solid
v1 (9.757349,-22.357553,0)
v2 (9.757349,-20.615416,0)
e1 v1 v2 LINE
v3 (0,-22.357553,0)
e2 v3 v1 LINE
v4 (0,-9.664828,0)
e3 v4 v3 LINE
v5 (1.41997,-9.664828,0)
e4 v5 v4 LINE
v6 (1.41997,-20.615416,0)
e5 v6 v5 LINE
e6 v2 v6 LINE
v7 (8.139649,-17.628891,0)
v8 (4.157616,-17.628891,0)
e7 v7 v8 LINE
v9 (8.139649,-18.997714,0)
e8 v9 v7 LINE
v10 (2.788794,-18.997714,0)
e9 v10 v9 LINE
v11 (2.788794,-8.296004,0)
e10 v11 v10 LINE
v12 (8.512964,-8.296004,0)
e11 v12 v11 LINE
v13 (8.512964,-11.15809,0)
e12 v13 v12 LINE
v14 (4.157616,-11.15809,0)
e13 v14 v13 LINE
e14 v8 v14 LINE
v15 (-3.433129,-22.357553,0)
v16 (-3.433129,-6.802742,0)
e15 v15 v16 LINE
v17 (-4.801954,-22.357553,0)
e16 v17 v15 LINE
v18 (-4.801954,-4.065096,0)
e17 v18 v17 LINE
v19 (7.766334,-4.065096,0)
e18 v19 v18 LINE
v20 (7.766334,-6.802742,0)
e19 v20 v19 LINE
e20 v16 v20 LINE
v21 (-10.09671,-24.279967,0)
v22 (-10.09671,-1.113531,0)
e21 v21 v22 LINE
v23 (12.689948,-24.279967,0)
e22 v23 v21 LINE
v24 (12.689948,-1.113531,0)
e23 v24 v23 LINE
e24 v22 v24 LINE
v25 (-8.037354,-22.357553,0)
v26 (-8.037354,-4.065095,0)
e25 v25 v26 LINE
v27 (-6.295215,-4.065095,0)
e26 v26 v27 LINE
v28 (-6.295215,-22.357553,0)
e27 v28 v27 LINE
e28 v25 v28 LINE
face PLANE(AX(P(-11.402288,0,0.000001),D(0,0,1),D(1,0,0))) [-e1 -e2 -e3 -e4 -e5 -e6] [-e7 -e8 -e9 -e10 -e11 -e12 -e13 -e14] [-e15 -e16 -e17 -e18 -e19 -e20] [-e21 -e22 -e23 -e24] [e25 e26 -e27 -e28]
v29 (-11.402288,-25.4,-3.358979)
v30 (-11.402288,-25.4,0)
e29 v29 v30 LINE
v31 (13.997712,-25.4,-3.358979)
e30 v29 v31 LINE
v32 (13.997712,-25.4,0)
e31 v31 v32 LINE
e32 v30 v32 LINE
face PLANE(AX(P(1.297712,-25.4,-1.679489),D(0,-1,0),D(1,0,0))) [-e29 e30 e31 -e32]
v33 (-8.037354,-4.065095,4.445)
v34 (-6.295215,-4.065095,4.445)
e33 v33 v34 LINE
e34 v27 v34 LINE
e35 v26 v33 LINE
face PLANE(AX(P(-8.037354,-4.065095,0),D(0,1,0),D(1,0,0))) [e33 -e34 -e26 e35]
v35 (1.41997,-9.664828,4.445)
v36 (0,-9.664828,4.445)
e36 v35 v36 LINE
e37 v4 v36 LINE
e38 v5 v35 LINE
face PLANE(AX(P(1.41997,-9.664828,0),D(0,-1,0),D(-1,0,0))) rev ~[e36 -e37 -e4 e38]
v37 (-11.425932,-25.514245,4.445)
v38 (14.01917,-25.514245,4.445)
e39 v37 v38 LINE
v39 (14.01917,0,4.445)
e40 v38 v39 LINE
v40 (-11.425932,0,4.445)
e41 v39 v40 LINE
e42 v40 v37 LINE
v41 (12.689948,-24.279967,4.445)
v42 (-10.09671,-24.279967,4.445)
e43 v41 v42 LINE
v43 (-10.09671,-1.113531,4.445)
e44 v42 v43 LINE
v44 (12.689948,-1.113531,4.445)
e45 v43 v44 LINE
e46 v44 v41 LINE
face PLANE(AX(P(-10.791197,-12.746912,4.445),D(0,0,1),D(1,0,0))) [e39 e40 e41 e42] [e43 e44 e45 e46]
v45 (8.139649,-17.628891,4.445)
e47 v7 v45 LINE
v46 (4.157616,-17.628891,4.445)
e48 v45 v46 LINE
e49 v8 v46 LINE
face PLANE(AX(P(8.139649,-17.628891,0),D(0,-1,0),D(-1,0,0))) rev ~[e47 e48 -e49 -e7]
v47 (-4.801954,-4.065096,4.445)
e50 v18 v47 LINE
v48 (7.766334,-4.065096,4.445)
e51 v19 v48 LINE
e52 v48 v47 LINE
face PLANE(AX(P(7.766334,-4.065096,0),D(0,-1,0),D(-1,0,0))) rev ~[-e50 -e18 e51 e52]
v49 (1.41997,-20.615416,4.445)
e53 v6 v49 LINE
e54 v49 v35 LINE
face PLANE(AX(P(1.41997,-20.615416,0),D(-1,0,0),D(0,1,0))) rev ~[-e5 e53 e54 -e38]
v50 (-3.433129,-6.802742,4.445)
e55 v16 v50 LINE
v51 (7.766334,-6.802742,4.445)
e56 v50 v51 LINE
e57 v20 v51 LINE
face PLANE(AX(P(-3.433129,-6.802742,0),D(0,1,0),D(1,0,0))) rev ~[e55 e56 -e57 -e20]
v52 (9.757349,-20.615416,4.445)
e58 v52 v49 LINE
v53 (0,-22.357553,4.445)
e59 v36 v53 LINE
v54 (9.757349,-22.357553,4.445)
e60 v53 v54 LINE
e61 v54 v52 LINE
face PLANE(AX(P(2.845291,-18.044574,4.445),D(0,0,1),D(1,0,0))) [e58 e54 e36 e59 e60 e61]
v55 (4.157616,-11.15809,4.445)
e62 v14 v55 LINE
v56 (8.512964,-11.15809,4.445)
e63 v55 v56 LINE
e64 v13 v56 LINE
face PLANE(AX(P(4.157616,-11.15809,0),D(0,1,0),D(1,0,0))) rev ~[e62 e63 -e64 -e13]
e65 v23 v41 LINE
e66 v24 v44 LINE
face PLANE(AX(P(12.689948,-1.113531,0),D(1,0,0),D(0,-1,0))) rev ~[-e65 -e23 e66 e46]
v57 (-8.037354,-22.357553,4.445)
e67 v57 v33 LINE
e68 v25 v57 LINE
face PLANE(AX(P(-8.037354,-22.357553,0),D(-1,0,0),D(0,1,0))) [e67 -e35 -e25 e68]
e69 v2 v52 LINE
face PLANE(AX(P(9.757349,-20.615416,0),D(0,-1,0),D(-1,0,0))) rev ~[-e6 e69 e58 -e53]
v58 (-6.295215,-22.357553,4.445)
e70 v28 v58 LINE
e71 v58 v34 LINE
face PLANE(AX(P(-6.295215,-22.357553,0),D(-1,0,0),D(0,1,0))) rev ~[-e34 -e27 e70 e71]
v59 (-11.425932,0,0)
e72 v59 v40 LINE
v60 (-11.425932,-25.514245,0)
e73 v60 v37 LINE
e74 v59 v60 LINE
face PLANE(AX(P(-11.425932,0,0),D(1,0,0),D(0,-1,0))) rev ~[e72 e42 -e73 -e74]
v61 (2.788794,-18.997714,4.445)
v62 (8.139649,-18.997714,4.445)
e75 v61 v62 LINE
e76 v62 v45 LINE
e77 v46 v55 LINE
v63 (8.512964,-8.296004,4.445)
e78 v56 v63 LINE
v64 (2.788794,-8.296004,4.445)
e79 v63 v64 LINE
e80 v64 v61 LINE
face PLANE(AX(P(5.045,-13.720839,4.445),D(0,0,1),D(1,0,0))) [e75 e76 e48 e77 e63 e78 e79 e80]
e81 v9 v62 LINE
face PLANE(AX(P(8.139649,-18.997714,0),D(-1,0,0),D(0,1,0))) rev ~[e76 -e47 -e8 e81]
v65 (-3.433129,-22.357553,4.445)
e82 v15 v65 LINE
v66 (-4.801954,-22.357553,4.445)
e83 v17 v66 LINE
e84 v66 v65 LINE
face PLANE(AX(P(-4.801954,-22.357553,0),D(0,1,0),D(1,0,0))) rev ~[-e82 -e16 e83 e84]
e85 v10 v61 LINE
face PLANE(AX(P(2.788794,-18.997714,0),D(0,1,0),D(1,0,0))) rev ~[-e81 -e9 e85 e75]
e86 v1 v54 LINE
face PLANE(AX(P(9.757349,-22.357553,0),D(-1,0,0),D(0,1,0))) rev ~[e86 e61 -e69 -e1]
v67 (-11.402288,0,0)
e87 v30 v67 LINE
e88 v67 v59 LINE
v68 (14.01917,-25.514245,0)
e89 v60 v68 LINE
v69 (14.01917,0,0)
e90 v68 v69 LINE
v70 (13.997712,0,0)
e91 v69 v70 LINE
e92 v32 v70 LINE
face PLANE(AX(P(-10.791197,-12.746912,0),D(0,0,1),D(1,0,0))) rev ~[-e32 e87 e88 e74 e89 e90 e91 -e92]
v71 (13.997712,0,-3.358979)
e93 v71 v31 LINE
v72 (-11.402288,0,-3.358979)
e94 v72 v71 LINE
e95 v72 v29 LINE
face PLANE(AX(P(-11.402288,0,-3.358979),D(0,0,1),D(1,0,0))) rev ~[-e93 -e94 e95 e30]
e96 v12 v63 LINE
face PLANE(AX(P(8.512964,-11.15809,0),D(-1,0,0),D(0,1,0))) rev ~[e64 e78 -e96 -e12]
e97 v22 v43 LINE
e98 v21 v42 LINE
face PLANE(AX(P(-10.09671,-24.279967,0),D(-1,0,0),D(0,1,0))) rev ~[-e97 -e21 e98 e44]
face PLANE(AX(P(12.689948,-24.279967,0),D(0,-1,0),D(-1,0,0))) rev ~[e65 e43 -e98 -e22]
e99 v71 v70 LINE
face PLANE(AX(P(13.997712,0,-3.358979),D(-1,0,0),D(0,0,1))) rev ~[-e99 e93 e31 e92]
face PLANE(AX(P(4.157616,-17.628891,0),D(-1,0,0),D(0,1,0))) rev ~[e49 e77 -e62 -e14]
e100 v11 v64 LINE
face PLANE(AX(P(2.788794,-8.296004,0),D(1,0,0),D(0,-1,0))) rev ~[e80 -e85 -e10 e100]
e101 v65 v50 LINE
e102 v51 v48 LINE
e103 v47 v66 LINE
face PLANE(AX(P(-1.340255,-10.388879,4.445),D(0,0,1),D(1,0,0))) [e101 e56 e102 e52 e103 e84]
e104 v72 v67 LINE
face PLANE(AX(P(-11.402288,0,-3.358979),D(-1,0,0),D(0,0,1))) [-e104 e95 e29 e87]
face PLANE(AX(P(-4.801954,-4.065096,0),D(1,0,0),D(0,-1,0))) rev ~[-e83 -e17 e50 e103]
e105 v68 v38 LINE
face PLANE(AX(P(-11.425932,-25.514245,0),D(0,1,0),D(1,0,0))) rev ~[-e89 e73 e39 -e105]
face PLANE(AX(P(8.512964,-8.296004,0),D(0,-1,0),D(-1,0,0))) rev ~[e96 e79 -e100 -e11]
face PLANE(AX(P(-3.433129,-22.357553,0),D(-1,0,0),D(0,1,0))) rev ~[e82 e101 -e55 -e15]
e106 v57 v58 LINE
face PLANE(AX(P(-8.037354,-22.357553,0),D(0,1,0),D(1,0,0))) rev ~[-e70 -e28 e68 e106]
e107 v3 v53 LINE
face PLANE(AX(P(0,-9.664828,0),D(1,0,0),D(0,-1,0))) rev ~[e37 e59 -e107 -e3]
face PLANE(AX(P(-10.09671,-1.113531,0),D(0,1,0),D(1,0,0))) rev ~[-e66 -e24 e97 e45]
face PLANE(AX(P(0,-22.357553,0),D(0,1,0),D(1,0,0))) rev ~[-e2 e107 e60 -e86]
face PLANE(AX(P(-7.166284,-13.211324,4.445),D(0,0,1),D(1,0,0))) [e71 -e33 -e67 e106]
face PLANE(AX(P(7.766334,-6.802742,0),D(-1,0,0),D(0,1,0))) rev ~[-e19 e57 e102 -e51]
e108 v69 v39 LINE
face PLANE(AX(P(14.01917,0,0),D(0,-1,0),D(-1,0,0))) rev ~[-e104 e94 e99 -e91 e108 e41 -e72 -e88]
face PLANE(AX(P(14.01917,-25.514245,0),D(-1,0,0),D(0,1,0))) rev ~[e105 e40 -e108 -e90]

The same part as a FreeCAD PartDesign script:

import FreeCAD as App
import Part
import Sketcher
from FreeCAD import Vector
Q = App.Units.Quantity


def add_polygon(sketch, points):
    """Adds a closed chain of lines whose ends are joined by coincident constraints."""
    first, n = sketch.GeometryCount, len(points)
    for a, b in zip(points, points[1:] + points[:1]):
        sketch.addGeometry(Part.LineSegment(App.Vector(*a, 0), App.Vector(*b, 0)), False)
    for i in range(n):
        sketch.addConstraint(Sketcher.Constraint("Coincident", first + i, 2, first + (i + 1) % n, 1))

doc = App.newDocument("Part")
body = doc.addObject("PartDesign::Body", "Body")

# Sketch on XZ plane
sketch1 = body.newObject("Sketcher::SketchObject", "Sketch")
sketch1.AttachmentSupport = (doc.getObject("XZ_Plane"), [""])
sketch1.MapMode = "FlatFace"
add_polygon(sketch1, [(-11.4, 0), (-11.4, -3.4), (14, -3.4), (14, 0)])  # lines 0-3
sketch1.addConstraint([
    Sketcher.Constraint("Vertical", 0),
    Sketcher.Constraint("Horizontal", 1),
    Sketcher.Constraint("Vertical", 2),
    Sketcher.Constraint("Horizontal", 3),
    Sketcher.Constraint("PointOnObject", 2, 2, -1),
    Sketcher.Constraint("DistanceX", 1, 1, 1, 2, Q("1 in")),
    Sketcher.Constraint("DistanceY", 0, 2, 0, 1, Q("3.358979 mm")),
    Sketcher.Constraint("DistanceX", 0, 2, -1, 1, Q("11.402288 mm")),
])
pad1 = body.newObject("PartDesign::Pad", "Pad")
pad1.Profile = sketch1
pad1.Length = Q("1 in")

# Sketch on XY plane
sketch2 = body.newObject("Sketcher::SketchObject", "Sketch001")
sketch2.AttachmentSupport = (doc.getObject("XY_Plane"), [""])
sketch2.MapMode = "FlatFace"
add_polygon(sketch2, [(-11, 0), (-11, -26), (14, -26), (14, 0)])  # lines 0-3
add_polygon(sketch2, [(-10, -24), (-10, -1), (13, -1), (13, -24)])  # lines 4-7
sketch2.addConstraint([
    Sketcher.Constraint("Vertical", 0),
    Sketcher.Constraint("Horizontal", 1),
    Sketcher.Constraint("Vertical", 2),
    Sketcher.Constraint("Horizontal", 3),
    Sketcher.Constraint("Vertical", 4),
    Sketcher.Constraint("Horizontal", 5),
    Sketcher.Constraint("Vertical", 6),
    Sketcher.Constraint("Horizontal", 7),
    Sketcher.Constraint("PointOnObject", 2, 2, -1),
    Sketcher.Constraint("DistanceX", 1, 1, 1, 2, Q("25.445102 mm")),
    Sketcher.Constraint("DistanceX", 5, 1, 5, 2, Q("22.786658 mm")),
    Sketcher.Constraint("DistanceY", 0, 2, 0, 1, Q("25.514245 mm")),
    Sketcher.Constraint("DistanceY", 4, 1, 4, 2, Q("23.166436 mm")),
    Sketcher.Constraint("DistanceX", -1, 1, 1, 2, Q("14.01917 mm")),
    Sketcher.Constraint("DistanceX", 4, 2, -1, 1, Q("10.09671 mm")),
    Sketcher.Constraint("DistanceY", 4, 2, -1, 1, Q("1.113531 mm")),
])
pad2 = body.newObject("PartDesign::Pad", "Pad001")
pad2.Profile = sketch2
pad2.Length = Q("0.175 in")

# Sketch on XY plane
sketch3 = body.newObject("Sketcher::SketchObject", "Sketch002")
sketch3.AttachmentSupport = (doc.getObject("XY_Plane"), [""])
sketch3.MapMode = "FlatFace"
add_polygon(sketch3, [(-8, -4.1), (-8, -22.4), (-6.3, -22.4), (-6.3, -4.1)])  # lines 0-3
add_polygon(sketch3, [(7.8, -4.1), (-4.8, -4.1), (-4.8, -22.4), (-3.4, -22.4), (-3.4, -6.8), (7.8, -6.8)])  # lines 4-9
add_polygon(sketch3, [(1.4, -9.7), (0, -9.7), (0, -22.4), (9.8, -22.4), (9.8, -20.6), (1.4, -20.6)])  # lines 10-15
add_polygon(sketch3, [(8.5, -11.2), (8.5, -8.3), (2.8, -8.3), (2.8, -19), (8.1, -19), (8.1, -17.6), (4.2, -17.6), (4.2, -11.2)])  # lines 16-23
sketch3.addConstraint([
    Sketcher.Constraint("Vertical", 0),
    Sketcher.Constraint("Horizontal", 1),
    Sketcher.Constraint("Vertical", 2),
    Sketcher.Constraint("Horizontal", 3),
    Sketcher.Constraint("Horizontal", 4),
    Sketcher.Constraint("Vertical", 5),
    Sketcher.Constraint("Horizontal", 6),
    Sketcher.Constraint("Vertical", 7),
    Sketcher.Constraint("Horizontal", 8),
    Sketcher.Constraint("Vertical", 9),
    Sketcher.Constraint("Horizontal", 10),
    Sketcher.Constraint("Vertical", 11),
    Sketcher.Constraint("Horizontal", 12),
    Sketcher.Constraint("Vertical", 13),
    Sketcher.Constraint("Horizontal", 14),
    Sketcher.Constraint("Vertical", 15),
    Sketcher.Constraint("Vertical", 16),
    Sketcher.Constraint("Horizontal", 17),
    Sketcher.Constraint("Vertical", 18),
    Sketcher.Constraint("Horizontal", 19),
    Sketcher.Constraint("Vertical", 20),
    Sketcher.Constraint("Horizontal", 21),
    Sketcher.Constraint("Vertical", 22),
    Sketcher.Constraint("Horizontal", 23),
    Sketcher.Constraint("PointOnObject", 10, 2, -2),
    Sketcher.Constraint("Horizontal", 3, 2, 4, 2),
    Sketcher.Constraint("Horizontal", 1, 2, 5, 2),
    Sketcher.Constraint("Horizontal", 6, 2, 11, 2),
    Sketcher.Constraint("DistanceY", 22, 1, 22, 2, Q("6.470801 mm")),
    Sketcher.Constraint("DistanceX", 1, 1, 1, 2, Q("1.742139 mm")),
    Sketcher.Constraint("DistanceX", 10, 2, 10, 1, Q("1.41997 mm")),
    Sketcher.Constraint("DistanceX", 12, 1, 12, 2, Q("9.757349 mm")),
    Sketcher.Constraint("DistanceX", 17, 2, 17, 1, Q("5.72417 mm")),
    Sketcher.Constraint("DistanceX", 23, 1, 23, 2, Q("4.355348 mm")),
    Sketcher.Constraint("DistanceY", 7, 1, 7, 2, Q("15.554811 mm")),
    Sketcher.Constraint("DistanceY", 18, 2, 18, 1, Q("10.70171 mm")),
    Sketcher.Constraint("DistanceX", 3, 2, 4, 2, Q("3.235399 mm")),
    Sketcher.Constraint("DistanceX", 6, 2, 14, 2, Q("4.853099 mm")),
    Sketcher.Constraint("DistanceX", 19, 2, 13, 2, Q("1.6177 mm")),
    Sketcher.Constraint("DistanceX", 4, 2, 4, 1, Q("12.568288 mm")),
    Sketcher.Constraint("DistanceX", 6, 1, 6, 2, Q("1.368825 mm")),
    Sketcher.Constraint("DistanceX", 19, 1, 19, 2, Q("5.350855 mm")),
    Sketcher.Constraint("DistanceY", 0, 2, 0, 1, Q("18.292457 mm")),
    Sketcher.Constraint("DistanceY", 11, 2, 11, 1, Q("12.692725 mm")),
    Sketcher.Constraint("DistanceY", 13, 1, 13, 2, Q("1.742137 mm")),
    Sketcher.Constraint("DistanceY", 16, 1, 16, 2, Q("2.862086 mm")),
    Sketcher.Constraint("DistanceY", 20, 2, -1, 1, Q("17.628891 mm")),
    Sketcher.Constraint("DistanceY", 16, 2, 8, 2, Q("1.493262 mm")),
])
pad3 = body.newObject("PartDesign::Pad", "Pad002")
pad3.Profile = sketch3
pad3.Length = Q("0.175 in")

doc.recompute()
